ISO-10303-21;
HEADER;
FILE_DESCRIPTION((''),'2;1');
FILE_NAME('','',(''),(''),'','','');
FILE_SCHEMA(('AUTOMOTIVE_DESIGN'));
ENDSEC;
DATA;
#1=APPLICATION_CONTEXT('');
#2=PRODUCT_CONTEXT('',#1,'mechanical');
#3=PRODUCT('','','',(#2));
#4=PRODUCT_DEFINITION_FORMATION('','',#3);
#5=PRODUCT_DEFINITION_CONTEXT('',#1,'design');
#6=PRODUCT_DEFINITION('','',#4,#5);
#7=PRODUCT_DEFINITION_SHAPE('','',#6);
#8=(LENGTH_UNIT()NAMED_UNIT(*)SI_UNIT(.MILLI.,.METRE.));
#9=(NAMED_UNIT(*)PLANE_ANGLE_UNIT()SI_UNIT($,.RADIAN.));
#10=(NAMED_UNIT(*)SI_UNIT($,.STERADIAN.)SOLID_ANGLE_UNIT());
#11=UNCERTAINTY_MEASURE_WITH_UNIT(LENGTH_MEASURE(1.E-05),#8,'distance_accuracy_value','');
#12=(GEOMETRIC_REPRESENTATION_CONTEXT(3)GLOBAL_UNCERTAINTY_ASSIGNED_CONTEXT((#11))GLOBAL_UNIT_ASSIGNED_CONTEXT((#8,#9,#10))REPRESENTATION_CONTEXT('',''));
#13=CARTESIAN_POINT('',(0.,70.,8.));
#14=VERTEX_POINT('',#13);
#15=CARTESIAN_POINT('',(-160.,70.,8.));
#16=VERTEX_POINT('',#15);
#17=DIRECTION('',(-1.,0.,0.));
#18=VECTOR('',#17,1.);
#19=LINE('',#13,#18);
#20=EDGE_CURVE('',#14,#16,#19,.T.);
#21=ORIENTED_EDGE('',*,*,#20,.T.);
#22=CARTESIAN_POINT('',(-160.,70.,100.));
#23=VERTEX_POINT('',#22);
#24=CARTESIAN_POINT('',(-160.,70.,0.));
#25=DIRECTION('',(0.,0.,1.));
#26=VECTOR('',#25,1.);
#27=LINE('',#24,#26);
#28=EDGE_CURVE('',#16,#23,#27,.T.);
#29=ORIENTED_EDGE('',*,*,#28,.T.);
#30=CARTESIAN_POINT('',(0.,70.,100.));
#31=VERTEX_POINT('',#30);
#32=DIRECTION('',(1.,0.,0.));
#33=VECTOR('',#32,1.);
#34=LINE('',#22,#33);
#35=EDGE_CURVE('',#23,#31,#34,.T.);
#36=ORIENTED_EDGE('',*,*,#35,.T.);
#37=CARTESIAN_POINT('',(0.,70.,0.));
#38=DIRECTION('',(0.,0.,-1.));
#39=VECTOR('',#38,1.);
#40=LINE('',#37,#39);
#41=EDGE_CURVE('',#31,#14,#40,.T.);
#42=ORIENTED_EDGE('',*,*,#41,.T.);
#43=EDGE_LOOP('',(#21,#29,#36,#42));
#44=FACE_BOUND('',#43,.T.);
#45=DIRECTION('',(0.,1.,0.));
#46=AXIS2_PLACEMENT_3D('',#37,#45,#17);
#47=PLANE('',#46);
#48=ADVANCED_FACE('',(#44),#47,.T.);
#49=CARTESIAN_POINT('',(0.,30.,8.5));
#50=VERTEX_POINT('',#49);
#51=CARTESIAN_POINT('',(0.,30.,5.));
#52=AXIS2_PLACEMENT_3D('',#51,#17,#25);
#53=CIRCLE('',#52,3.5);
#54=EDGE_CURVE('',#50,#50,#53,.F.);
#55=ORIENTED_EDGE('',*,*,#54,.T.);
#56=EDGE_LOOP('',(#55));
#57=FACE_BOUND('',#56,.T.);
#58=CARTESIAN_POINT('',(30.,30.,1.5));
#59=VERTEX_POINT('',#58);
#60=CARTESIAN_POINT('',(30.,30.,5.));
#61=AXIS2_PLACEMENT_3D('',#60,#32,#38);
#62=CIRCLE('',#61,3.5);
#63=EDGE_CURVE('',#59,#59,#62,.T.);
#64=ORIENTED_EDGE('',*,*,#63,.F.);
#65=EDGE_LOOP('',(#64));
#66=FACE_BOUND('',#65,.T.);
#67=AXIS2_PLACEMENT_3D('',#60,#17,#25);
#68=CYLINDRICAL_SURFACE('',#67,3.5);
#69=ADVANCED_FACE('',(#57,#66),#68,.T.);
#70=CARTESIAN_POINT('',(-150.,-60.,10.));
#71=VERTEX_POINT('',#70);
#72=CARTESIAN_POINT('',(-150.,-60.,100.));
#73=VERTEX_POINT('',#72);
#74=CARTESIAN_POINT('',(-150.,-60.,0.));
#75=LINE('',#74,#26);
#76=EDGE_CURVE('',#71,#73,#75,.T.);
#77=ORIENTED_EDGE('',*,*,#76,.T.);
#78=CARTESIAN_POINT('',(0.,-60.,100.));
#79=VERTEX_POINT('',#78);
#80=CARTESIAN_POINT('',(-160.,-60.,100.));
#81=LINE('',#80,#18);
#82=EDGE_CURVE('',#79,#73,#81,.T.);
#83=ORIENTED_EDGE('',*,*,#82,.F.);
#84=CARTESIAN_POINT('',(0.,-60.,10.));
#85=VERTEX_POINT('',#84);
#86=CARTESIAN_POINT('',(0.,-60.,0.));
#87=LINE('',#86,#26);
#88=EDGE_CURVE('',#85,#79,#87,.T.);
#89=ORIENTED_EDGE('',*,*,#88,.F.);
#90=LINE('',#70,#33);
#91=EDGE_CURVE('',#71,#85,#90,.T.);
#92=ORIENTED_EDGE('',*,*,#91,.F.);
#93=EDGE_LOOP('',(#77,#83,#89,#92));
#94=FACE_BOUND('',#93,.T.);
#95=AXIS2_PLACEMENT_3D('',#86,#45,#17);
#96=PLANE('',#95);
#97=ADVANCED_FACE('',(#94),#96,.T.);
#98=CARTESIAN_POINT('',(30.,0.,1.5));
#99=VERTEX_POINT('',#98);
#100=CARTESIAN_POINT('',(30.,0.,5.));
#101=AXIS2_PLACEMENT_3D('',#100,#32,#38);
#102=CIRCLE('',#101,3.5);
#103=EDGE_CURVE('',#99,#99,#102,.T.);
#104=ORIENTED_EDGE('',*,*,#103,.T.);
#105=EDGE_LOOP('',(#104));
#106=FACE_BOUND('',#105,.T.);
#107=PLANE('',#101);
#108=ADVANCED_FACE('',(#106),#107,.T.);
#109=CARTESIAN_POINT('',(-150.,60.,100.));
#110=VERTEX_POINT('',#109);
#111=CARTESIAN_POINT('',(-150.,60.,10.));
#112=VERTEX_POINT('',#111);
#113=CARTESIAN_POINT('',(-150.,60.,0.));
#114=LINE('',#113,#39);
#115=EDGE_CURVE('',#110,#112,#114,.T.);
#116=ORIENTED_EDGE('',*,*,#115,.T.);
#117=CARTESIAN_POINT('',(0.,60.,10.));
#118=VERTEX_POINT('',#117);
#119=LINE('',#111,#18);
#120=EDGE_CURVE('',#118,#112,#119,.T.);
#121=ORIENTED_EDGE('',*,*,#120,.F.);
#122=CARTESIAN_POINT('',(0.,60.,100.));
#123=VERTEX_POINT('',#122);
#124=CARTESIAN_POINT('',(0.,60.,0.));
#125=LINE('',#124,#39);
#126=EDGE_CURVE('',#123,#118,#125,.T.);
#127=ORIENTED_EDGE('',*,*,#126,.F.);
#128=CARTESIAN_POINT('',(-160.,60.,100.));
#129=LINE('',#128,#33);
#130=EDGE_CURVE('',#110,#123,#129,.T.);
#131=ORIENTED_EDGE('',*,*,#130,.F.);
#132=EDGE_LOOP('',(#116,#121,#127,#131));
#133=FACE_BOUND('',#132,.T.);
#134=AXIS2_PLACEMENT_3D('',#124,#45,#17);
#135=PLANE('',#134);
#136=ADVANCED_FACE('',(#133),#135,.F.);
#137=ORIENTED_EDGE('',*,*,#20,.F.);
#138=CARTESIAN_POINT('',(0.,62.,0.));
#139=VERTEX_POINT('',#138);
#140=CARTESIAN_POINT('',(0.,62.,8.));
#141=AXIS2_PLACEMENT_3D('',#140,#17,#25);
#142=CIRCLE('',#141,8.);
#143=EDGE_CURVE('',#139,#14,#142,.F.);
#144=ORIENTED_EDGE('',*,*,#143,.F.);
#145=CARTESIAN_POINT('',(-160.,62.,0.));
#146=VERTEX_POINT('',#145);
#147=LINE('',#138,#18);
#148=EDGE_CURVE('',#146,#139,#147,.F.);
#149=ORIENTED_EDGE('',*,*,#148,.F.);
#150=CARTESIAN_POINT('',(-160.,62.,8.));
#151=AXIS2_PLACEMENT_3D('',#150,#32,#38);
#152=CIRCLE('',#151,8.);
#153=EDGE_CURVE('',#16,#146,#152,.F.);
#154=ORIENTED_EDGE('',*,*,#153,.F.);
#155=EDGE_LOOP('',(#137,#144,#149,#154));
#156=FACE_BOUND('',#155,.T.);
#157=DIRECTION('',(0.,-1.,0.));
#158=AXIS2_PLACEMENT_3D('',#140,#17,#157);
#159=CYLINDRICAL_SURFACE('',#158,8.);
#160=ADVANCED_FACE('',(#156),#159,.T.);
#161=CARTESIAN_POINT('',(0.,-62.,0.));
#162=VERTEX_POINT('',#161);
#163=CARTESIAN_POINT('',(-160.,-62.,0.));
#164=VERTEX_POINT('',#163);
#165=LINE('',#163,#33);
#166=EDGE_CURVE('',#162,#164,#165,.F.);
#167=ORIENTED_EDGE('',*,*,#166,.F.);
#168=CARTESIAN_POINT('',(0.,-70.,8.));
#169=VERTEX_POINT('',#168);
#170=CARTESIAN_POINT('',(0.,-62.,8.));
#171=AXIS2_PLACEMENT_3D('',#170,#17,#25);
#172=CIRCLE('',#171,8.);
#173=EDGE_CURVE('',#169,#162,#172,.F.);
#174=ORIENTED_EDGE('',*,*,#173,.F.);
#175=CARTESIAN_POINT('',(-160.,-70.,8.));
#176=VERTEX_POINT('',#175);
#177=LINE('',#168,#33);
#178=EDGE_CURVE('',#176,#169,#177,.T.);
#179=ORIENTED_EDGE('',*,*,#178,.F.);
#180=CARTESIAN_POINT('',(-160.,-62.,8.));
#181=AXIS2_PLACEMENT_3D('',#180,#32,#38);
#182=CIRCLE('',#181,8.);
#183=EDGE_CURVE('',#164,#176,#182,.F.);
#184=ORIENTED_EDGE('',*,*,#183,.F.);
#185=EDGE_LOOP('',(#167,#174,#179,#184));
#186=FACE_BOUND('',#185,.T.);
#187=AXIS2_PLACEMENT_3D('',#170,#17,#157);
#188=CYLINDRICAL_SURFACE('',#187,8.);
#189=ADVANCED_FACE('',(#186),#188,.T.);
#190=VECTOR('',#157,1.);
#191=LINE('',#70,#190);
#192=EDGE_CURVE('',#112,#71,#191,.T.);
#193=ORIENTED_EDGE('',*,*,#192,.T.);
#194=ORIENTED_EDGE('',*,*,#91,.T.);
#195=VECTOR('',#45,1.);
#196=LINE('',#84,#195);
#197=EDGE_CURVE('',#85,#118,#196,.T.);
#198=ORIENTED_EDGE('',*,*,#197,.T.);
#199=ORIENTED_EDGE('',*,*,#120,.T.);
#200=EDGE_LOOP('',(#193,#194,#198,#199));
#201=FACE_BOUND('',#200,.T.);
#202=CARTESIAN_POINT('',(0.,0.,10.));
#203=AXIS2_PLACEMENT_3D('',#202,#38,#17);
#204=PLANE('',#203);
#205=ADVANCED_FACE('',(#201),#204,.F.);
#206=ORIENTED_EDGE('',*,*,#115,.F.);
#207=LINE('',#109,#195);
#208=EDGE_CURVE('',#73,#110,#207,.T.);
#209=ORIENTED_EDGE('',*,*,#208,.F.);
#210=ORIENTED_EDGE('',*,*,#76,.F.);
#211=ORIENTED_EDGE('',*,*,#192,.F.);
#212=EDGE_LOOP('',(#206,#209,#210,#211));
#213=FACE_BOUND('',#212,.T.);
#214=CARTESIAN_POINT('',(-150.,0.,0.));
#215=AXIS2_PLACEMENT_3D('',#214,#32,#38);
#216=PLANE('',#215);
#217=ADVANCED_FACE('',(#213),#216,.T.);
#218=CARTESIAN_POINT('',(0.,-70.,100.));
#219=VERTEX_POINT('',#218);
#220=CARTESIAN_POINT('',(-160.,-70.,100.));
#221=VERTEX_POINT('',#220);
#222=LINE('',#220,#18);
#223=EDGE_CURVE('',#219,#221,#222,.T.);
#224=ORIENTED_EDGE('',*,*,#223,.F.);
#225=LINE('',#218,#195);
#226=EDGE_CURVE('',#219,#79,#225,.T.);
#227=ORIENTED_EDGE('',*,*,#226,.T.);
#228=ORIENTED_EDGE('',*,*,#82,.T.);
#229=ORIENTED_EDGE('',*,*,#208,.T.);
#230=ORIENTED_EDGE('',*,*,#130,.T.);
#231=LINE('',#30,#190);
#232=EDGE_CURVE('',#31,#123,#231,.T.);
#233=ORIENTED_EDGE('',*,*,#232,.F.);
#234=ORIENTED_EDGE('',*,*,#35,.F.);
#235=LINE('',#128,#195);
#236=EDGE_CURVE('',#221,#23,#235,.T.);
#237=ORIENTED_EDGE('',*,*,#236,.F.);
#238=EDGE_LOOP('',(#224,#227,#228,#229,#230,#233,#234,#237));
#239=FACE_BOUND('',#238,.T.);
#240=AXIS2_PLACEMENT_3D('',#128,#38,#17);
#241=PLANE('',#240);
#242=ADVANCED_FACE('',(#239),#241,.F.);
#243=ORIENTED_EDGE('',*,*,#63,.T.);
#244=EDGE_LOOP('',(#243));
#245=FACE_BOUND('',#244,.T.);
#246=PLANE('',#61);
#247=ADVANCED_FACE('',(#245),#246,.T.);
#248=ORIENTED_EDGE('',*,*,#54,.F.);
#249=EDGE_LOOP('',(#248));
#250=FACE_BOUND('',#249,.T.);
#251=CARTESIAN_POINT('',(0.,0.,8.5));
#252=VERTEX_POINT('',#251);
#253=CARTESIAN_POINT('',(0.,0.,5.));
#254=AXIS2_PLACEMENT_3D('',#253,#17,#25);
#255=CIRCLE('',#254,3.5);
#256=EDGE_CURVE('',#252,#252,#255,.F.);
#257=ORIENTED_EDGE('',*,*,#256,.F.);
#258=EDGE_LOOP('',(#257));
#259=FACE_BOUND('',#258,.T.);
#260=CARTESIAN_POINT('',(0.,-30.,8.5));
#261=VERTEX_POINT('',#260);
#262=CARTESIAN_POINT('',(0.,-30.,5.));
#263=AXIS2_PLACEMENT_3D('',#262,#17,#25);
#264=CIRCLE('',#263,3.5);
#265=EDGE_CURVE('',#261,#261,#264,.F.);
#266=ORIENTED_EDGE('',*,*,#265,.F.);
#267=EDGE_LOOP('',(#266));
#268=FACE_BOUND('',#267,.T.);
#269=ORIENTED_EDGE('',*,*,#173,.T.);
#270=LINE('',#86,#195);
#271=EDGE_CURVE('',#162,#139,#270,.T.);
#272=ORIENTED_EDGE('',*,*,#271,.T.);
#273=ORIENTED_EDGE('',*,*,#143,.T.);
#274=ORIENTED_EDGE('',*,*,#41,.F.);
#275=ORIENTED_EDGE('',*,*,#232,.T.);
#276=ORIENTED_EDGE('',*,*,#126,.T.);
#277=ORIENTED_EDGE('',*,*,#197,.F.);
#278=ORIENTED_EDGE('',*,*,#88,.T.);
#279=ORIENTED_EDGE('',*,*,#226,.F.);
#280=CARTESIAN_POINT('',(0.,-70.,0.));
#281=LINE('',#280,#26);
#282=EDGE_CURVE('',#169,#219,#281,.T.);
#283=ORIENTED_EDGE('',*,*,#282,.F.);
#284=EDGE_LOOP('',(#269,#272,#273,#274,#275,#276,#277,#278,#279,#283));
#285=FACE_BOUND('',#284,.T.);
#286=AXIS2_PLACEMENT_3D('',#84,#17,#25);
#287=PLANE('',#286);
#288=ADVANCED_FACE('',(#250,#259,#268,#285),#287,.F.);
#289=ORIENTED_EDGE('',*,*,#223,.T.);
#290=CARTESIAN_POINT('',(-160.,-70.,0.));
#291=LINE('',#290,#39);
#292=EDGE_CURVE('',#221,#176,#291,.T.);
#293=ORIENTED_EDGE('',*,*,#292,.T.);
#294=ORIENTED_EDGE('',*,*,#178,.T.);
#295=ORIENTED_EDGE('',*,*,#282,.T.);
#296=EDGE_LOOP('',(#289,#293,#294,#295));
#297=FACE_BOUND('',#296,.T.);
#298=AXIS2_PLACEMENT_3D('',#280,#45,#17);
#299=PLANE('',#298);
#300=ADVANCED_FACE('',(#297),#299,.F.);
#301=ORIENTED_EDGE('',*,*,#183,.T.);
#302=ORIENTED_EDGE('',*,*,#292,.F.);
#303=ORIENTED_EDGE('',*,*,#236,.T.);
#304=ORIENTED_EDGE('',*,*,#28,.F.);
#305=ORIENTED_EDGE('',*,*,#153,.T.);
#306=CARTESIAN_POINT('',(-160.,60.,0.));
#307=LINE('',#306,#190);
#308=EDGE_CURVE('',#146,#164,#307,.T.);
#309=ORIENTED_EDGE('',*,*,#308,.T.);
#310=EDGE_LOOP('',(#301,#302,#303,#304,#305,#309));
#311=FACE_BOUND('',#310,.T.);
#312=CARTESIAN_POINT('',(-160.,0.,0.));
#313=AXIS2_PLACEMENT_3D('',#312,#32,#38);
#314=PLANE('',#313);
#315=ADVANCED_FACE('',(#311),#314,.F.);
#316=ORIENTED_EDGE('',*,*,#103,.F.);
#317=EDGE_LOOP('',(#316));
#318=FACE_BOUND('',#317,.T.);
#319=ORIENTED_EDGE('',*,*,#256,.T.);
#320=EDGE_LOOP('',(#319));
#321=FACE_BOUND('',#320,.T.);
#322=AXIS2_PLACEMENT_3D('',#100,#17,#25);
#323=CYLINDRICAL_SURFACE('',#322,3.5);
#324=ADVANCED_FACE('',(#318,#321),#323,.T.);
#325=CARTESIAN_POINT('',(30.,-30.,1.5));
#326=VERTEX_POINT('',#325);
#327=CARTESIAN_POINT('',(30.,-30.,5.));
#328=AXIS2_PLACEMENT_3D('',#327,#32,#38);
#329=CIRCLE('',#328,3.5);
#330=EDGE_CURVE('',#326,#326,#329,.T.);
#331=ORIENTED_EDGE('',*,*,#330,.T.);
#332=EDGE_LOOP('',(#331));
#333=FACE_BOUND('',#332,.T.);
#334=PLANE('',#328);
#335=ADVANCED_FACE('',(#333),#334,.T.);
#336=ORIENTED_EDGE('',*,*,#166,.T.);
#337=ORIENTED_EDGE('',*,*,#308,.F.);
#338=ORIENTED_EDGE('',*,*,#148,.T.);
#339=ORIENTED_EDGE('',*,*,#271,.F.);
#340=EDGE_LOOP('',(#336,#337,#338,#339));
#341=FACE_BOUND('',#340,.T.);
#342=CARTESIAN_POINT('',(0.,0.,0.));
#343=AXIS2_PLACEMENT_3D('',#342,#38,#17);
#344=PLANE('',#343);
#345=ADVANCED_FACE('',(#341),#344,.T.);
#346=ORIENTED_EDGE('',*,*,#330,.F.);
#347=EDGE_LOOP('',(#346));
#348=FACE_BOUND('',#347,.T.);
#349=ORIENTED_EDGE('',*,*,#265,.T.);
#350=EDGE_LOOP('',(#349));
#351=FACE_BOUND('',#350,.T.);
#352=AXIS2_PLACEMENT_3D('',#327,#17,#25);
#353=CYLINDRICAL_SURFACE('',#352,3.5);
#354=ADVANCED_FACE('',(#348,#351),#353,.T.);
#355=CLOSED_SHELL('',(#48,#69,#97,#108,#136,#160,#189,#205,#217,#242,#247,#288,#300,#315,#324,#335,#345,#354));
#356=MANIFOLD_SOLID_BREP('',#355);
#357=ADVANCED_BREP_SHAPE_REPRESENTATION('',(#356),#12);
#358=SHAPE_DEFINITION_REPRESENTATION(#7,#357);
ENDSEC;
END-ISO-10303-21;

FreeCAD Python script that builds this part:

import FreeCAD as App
import Part
import Sketcher
Q = App.Units.Quantity


def edges_at(feature, points):
    """Names of the edges that pass closest to the given points."""
    edges = feature.Shape.Edges
    near = lambda p: min(range(len(edges)), key=lambda i: edges[i].distToShape(Part.Vertex(*p))[0])
    return sorted({f"Edge{near(p) + 1}" for p in points})

doc = App.newDocument("Part")
body = doc.addObject("PartDesign::Body", "Body")

# Sketch on XY plane
sketch1 = doc.addObject("Sketcher::SketchObject", "Sketch")
body.addObject(sketch1)
sketch1.AttachmentSupport = (doc.XY_Plane, [""])
sketch1.MapMode = "FlatFace"
sketch1.addGeometry([
    Part.LineSegment(App.Vector(-150, 60, 0), App.Vector(-150, -60, 0)),
    Part.LineSegment(App.Vector(-150, -60, 0), App.Vector(0, -60, 0)),
    Part.LineSegment(App.Vector(0, -60, 0), App.Vector(0, 60, 0)),
    Part.LineSegment(App.Vector(0, 60, 0), App.Vector(-150, 60, 0)),
], False)
sketch1.addConstraint([
    Sketcher.Constraint("Coincident", 0, 2, 1, 1),
    Sketcher.Constraint("Coincident", 1, 2, 2, 1),
    Sketcher.Constraint("Coincident", 2, 2, 3, 1),
    Sketcher.Constraint("Coincident", 3, 2, 0, 1),
    Sketcher.Constraint("Vertical", 0),
    Sketcher.Constraint("Horizontal", 1),
    Sketcher.Constraint("Vertical", 2),
    Sketcher.Constraint("Horizontal", 3),
    Sketcher.Constraint("Symmetric", 1, 2, 2, 2, -1, 1),
    Sketcher.Constraint("DistanceX", 1, 1, 1, 2, Q("150 mm")),
    Sketcher.Constraint("DistanceY", 0, 2, 0, 1, Q("120 mm")),
])
pad1 = doc.addObject("PartDesign::Pad", "Pad")
body.addObject(pad1)
pad1.Profile = sketch1
pad1.Length = 10

# Sketch on YZ plane
sketch2 = doc.addObject("Sketcher::SketchObject", "Sketch001")
body.addObject(sketch2)
sketch2.AttachmentSupport = (doc.YZ_Plane, [""])
sketch2.MapMode = "FlatFace"
sketch2.addGeometry([
    Part.Circle(App.Vector(30, 5, 0), App.Vector(0, 0, 1), 3.5),
    Part.Circle(App.Vector(-30, 5, 0), App.Vector(0, 0, 1), 3.5),
    Part.Circle(App.Vector(0, 5, 0), App.Vector(0, 0, 1), 3.5),
], False)
sketch2.addConstraint([
    Sketcher.Constraint("Equal", 0, 1),
    Sketcher.Constraint("Equal", 1, 2),
    Sketcher.Constraint("Symmetric", 0, 3, 1, 3, -2),
    Sketcher.Constraint("PointOnObject", 2, 3, -2),
    Sketcher.Constraint("Horizontal", 1, 3, 2, 3),
    Sketcher.Constraint("Diameter", 0, Q("7 mm")),
    Sketcher.Constraint("DistanceX", -1, 1, 0, 3, Q("30 mm")),
    Sketcher.Constraint("DistanceY", -1, 1, 0, 3, Q("5 mm")),
])
pad2 = doc.addObject("PartDesign::Pad", "Pad001")
body.addObject(pad2)
pad2.Profile = sketch2
pad2.Length = 30

# Sketch on YZ plane
sketch3 = doc.addObject("Sketcher::SketchObject", "Sketch002")
body.addObject(sketch3)
sketch3.AttachmentSupport = (doc.YZ_Plane, [""])
sketch3.MapMode = "FlatFace"
sketch3.AttachmentOffset = App.Placement(App.Vector(0, 0, -150), App.Rotation())
sketch3.addGeometry([
    Part.LineSegment(App.Vector(60, 0, 0), App.Vector(-60, 0, 0)),
    Part.LineSegment(App.Vector(-60, 0, 0), App.Vector(-60, 100, 0)),
    Part.LineSegment(App.Vector(-60, 100, 0), App.Vector(60, 100, 0)),
    Part.LineSegment(App.Vector(60, 100, 0), App.Vector(60, 0, 0)),
], False)
sketch3.addConstraint([
    Sketcher.Constraint("Coincident", 0, 2, 1, 1),
    Sketcher.Constraint("Coincident", 1, 2, 2, 1),
    Sketcher.Constraint("Coincident", 2, 2, 3, 1),
    Sketcher.Constraint("Coincident", 3, 2, 0, 1),
    Sketcher.Constraint("Horizontal", 0),
    Sketcher.Constraint("Vertical", 1),
    Sketcher.Constraint("Horizontal", 2),
    Sketcher.Constraint("Vertical", 3),
    Sketcher.Constraint("Symmetric", 0, 2, 3, 2, -1, 1),
    Sketcher.Constraint("DistanceX", 0, 2, 0, 1, Q("120 mm")),
    Sketcher.Constraint("DistanceY", 1, 1, 1, 2, Q("100 mm")),
])
pad3 = doc.addObject("PartDesign::Pad", "Pad002")
body.addObject(pad3)
pad3.Profile = sketch3
pad3.Length = 10
pad3.Reversed = True

# Sketch on XZ plane
sketch4 = doc.addObject("Sketcher::SketchObject", "Sketch003")
body.addObject(sketch4)
sketch4.AttachmentSupport = (doc.XZ_Plane, [""])
sketch4.MapMode = "FlatFace"
sketch4.AttachmentOffset = App.Placement(App.Vector(0, 0, 60), App.Rotation())
sketch4.addGeometry([
    Part.LineSegment(App.Vector(-160, 100, 0), App.Vector(-160, 0, 0)),
    Part.LineSegment(App.Vector(-160, 0, 0), App.Vector(0, 0, 0)),
    Part.LineSegment(App.Vector(0, 0, 0), App.Vector(0, 100, 0)),
    Part.LineSegment(App.Vector(0, 100, 0), App.Vector(-160, 100, 0)),
], False)
sketch4.addConstraint([
    Sketcher.Constraint("Coincident", 0, 2, 1, 1),
    Sketcher.Constraint("Coincident", 1, 2, 2, 1),
    Sketcher.Constraint("Coincident", 2, 2, 3, 1),
    Sketcher.Constraint("Coincident", 3, 2, 0, 1),
    Sketcher.Constraint("Vertical", 0),
    Sketcher.Constraint("Horizontal", 1),
    Sketcher.Constraint("Vertical", 2),
    Sketcher.Constraint("Horizontal", 3),
    Sketcher.Constraint("Coincident", 1, 2, -1, 1),
    Sketcher.Constraint("DistanceX", 1, 1, 1, 2, Q("160 mm")),
    Sketcher.Constraint("DistanceY", 0, 2, 0, 1, Q("100 mm")),
])
pad4 = doc.addObject("PartDesign::Pad", "Pad003")
body.addObject(pad4)
pad4.Profile = sketch4
pad4.Length = 10

# Sketch on XZ plane
sketch5 = doc.addObject("Sketcher::SketchObject", "Sketch004")
body.addObject(sketch5)
sketch5.AttachmentSupport = (doc.XZ_Plane, [""])
sketch5.MapMode = "FlatFace"
sketch5.AttachmentOffset = App.Placement(App.Vector(0, 0, -60), App.Rotation())
sketch5.addGeometry([
    Part.LineSegment(App.Vector(-160, 0, 0), App.Vector(-160, 100, 0)),
    Part.LineSegment(App.Vector(-160, 100, 0), App.Vector(0, 100, 0)),
    Part.LineSegment(App.Vector(0, 100, 0), App.Vector(0, 0, 0)),
    Part.LineSegment(App.Vector(0, 0, 0), App.Vector(-160, 0, 0)),
], False)
sketch5.addConstraint([
    Sketcher.Constraint("Coincident", 0, 2, 1, 1),
    Sketcher.Constraint("Coincident", 1, 2, 2, 1),
    Sketcher.Constraint("Coincident", 2, 2, 3, 1),
    Sketcher.Constraint("Coincident", 3, 2, 0, 1),
    Sketcher.Constraint("Vertical", 0),
    Sketcher.Constraint("Horizontal", 1),
    Sketcher.Constraint("Vertical", 2),
    Sketcher.Constraint("Horizontal", 3),
    Sketcher.Constraint("Coincident", 2, 2, -1, 1),
    Sketcher.Constraint("DistanceX", 1, 1, 1, 2, Q("160 mm")),
    Sketcher.Constraint("DistanceY", 0, 1, 0, 2, Q("100 mm")),
])
pad5 = doc.addObject("PartDesign::Pad", "Pad004")
body.addObject(pad5)
pad5.Profile = sketch5
pad5.Length = 10
pad5.Reversed = True
doc.recompute()

fillet = doc.addObject("PartDesign::Fillet", "Fillet")
body.addObject(fillet)
fillet.Base = (pad5, edges_at(pad5, [(-80, -70, 0), (-80, 70, 0)]))
fillet.Radius = 8

doc.recompute()
